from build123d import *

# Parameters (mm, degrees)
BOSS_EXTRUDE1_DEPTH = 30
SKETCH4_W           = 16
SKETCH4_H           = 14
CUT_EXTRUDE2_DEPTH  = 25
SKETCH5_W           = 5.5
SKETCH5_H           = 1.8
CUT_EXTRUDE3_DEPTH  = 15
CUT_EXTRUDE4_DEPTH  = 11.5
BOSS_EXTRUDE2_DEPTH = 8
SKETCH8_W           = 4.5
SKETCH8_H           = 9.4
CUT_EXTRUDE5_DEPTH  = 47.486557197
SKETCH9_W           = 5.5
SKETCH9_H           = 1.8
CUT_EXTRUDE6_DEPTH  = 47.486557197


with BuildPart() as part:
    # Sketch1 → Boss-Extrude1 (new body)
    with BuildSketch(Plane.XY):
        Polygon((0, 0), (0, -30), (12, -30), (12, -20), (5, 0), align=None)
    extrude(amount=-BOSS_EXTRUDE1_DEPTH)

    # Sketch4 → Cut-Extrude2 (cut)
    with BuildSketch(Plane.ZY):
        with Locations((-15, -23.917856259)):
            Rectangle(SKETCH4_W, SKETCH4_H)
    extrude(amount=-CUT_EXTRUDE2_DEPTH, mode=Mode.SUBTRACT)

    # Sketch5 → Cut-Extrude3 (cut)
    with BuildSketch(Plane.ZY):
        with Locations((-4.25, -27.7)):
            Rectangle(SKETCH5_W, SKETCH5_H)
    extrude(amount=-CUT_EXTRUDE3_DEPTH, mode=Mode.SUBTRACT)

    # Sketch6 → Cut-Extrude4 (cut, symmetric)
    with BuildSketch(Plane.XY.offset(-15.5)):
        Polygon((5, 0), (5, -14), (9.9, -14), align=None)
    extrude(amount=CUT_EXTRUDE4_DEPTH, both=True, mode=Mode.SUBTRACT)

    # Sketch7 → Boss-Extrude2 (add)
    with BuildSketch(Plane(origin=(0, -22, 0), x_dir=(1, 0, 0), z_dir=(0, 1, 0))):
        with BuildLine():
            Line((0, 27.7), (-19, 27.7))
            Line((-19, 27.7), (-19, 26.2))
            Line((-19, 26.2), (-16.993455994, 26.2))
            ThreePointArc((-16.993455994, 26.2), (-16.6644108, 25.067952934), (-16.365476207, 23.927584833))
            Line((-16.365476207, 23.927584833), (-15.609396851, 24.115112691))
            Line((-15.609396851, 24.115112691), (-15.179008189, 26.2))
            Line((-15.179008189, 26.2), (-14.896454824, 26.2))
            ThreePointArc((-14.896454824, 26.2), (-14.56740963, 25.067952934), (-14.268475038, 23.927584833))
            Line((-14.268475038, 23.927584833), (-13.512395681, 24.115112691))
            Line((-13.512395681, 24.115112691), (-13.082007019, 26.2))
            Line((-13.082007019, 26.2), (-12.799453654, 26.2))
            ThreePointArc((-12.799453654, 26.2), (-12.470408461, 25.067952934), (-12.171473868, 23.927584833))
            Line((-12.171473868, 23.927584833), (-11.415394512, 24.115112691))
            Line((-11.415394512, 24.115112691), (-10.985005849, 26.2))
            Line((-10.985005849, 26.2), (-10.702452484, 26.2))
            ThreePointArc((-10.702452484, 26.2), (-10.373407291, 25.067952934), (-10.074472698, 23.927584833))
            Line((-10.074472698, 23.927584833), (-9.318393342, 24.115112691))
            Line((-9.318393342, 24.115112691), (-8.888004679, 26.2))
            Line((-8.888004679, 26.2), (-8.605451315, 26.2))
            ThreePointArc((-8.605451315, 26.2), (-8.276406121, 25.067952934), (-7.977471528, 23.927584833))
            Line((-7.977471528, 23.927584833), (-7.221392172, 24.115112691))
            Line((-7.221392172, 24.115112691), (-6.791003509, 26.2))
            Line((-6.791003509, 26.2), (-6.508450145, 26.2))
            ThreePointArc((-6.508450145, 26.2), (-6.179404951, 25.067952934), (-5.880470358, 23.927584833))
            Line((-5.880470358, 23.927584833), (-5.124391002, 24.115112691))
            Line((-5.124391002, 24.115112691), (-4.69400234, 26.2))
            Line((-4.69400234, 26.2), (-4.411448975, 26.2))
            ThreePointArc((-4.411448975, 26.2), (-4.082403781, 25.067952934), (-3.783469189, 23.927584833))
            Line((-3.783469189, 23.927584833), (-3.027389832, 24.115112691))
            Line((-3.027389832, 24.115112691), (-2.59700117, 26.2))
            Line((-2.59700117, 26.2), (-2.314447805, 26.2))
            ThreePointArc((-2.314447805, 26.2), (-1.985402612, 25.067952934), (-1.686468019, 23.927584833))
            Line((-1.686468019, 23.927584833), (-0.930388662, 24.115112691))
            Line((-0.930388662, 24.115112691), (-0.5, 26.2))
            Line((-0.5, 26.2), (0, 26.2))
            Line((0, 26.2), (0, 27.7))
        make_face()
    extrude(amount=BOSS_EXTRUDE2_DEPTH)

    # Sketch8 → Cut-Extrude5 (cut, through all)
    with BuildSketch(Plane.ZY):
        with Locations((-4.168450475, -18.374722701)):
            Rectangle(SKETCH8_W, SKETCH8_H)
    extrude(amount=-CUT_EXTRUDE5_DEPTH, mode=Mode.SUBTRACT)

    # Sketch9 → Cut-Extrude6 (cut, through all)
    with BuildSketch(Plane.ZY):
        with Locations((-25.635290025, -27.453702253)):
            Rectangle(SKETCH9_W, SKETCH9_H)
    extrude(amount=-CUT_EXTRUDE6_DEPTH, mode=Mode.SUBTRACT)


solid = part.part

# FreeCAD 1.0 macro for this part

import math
import FreeCAD as App
import Part
import Sketcher

V = App.Vector
Q = App.Units.Quantity

doc = App.newDocument("Part")
body = doc.addObject("PartDesign::Body", "Body")

# Sketch on XY plane
sketch1 = body.newObject("Sketcher::SketchObject", "Sketch")
sketch1.AttachmentSupport = (doc.getObject("XY_Plane"), [""])
sketch1.MapMode = "FlatFace"
sketch1.addGeometry([
    Part.LineSegment(V(0, 0, 0), V(0, -30, 0)),  # 0
    Part.LineSegment(V(0, -30, 0), V(12, -30, 0)),  # 1
    Part.LineSegment(V(12, -30, 0), V(12, -20, 0)),  # 2
    Part.LineSegment(V(12, -20, 0), V(5, 0, 0)),  # 3
    Part.LineSegment(V(5, 0, 0), V(0, 0, 0)),  # 4
], False)
sketch1.addConstraint([
    Sketcher.Constraint("Coincident", 0, 2, 1, 1),
    Sketcher.Constraint("Coincident", 1, 2, 2, 1),
    Sketcher.Constraint("Coincident", 2, 2, 3, 1),
    Sketcher.Constraint("Coincident", 3, 2, 4, 1),
    Sketcher.Constraint("Coincident", 4, 2, 0, 1),
    Sketcher.Constraint("Vertical", 0),
    Sketcher.Constraint("Horizontal", 1),
    Sketcher.Constraint("Vertical", 2),
    Sketcher.Constraint("Horizontal", 4),
    Sketcher.Constraint("Coincident", 4, 2, -1, 1),
    Sketcher.Constraint("DistanceX", 1, 1, 1, 2, Q("12 mm")),
    Sketcher.Constraint("DistanceX", 4, 2, 4, 1, Q("5 mm")),
    Sketcher.Constraint("DistanceY", 0, 2, 0, 1, Q("30 mm")),
    Sketcher.Constraint("DistanceY", 2, 1, 2, 2, Q("10 mm")),
])
pad1 = body.newObject("PartDesign::Pad", "Pad")
pad1.Profile = sketch1
pad1.Length = 30
pad1.Reversed = True

# Sketch on YZ plane
sketch2 = body.newObject("Sketcher::SketchObject", "Sketch001")
sketch2.AttachmentSupport = (doc.getObject("YZ_Plane"), [""])
sketch2.MapMode = "FlatFace"
sketch2.addGeometry([
    Part.LineSegment(V(-16.917856, -23, 0), V(-30.917856, -23, 0)),
    Part.LineSegment(V(-30.917856, -23, 0), V(-30.917856, -7, 0)),
    Part.LineSegment(V(-30.917856, -7, 0), V(-16.917856, -7, 0)),
    Part.LineSegment(V(-16.917856, -7, 0), V(-16.917856, -23, 0)),
], False)
sketch2.addConstraint([
    Sketcher.Constraint("Coincident", 0, 2, 1, 1),
    Sketcher.Constraint("Coincident", 1, 2, 2, 1),
    Sketcher.Constraint("Coincident", 2, 2, 3, 1),
    Sketcher.Constraint("Coincident", 3, 2, 0, 1),
    Sketcher.Constraint("Horizontal", 0),
    Sketcher.Constraint("Vertical", 1),
    Sketcher.Constraint("Horizontal", 2),
    Sketcher.Constraint("Vertical", 3),
    Sketcher.Constraint("DistanceX", 0, 2, 0, 1, Q("14 mm")),
    Sketcher.Constraint("DistanceY", 1, 1, 1, 2, Q("16 mm")),
    Sketcher.Constraint("DistanceY", 0, 2, -1, 1, Q("23 mm")),
    Sketcher.Constraint("DistanceX", 0, 2, -1, 1, Q("30.917856 mm")),
])
pocket1 = body.newObject("PartDesign::Pocket", "Pocket")
pocket1.Profile = sketch2
pocket1.Length = 25
pocket1.Reversed = True

# Sketch on YZ plane
sketch3 = body.newObject("Sketcher::SketchObject", "Sketch002")
sketch3.AttachmentSupport = (doc.getObject("YZ_Plane"), [""])
sketch3.MapMode = "FlatFace"
sketch3.addGeometry([
    Part.LineSegment(V(-26.8, -7, 0), V(-28.6, -7, 0)),
    Part.LineSegment(V(-28.6, -7, 0), V(-28.6, -1.5, 0)),
    Part.LineSegment(V(-28.6, -1.5, 0), V(-26.8, -1.5, 0)),
    Part.LineSegment(V(-26.8, -1.5, 0), V(-26.8, -7, 0)),
], False)
sketch3.addConstraint([
    Sketcher.Constraint("Coincident", 0, 2, 1, 1),
    Sketcher.Constraint("Coincident", 1, 2, 2, 1),
    Sketcher.Constraint("Coincident", 2, 2, 3, 1),
    Sketcher.Constraint("Coincident", 3, 2, 0, 1),
    Sketcher.Constraint("Horizontal", 0),
    Sketcher.Constraint("Vertical", 1),
    Sketcher.Constraint("Horizontal", 2),
    Sketcher.Constraint("Vertical", 3),
    Sketcher.Constraint("DistanceX", 0, 2, 0, 1, Q("1.8 mm")),
    Sketcher.Constraint("DistanceY", 1, 1, 1, 2, Q("5.5 mm")),
    Sketcher.Constraint("DistanceY", 0, 2, -1, 1, Q("7 mm")),
    Sketcher.Constraint("DistanceX", 0, 2, -1, 1, Q("28.6 mm")),
])
pocket2 = body.newObject("PartDesign::Pocket", "Pocket001")
pocket2.Profile = sketch3
pocket2.Length = 15
pocket2.Reversed = True

# Sketch on XY plane
sketch4 = body.newObject("Sketcher::SketchObject", "Sketch003")
sketch4.AttachmentSupport = (doc.getObject("XY_Plane"), [""])
sketch4.MapMode = "FlatFace"
sketch4.AttachmentOffset = App.Placement(V(0, 0, -15.5), App.Rotation())
sketch4.addGeometry([
    Part.LineSegment(V(5, 0, 0), V(5, -14, 0)),
    Part.LineSegment(V(5, -14, 0), V(9.9, -14, 0)),
    Part.LineSegment(V(9.9, -14, 0), V(5, 0, 0)),
], False)
sketch4.addConstraint([
    Sketcher.Constraint("Coincident", 0, 2, 1, 1),
    Sketcher.Constraint("Coincident", 1, 2, 2, 1),
    Sketcher.Constraint("Coincident", 2, 2, 0, 1),
    Sketcher.Constraint("Vertical", 0),
    Sketcher.Constraint("Horizontal", 1),
    Sketcher.Constraint("PointOnObject", 2, 2, -1),
    Sketcher.Constraint("DistanceY", 0, 2, 0, 1, Q("14 mm")),
    Sketcher.Constraint("DistanceX", 1, 1, 1, 2, Q("4.9 mm")),
    Sketcher.Constraint("DistanceX", -1, 1, 0, 2, Q("5 mm")),
])
pocket3 = body.newObject("PartDesign::Pocket", "Pocket002")
pocket3.Profile = sketch4
pocket3.Length = 23
pocket3.Midplane = True

# Sketch on XZ plane
sketch5 = body.newObject("Sketcher::SketchObject", "Sketch004")
sketch5.AttachmentSupport = (doc.getObject("XZ_Plane"), [""])
sketch5.MapMode = "FlatFace"
sketch5.AttachmentOffset = App.Placement(V(0, 0, 22), App.Rotation())
sketch5.addGeometry([
    Part.LineSegment(V(0, -27.7, 0), V(-19, -27.7, 0)),  # 0
    Part.LineSegment(V(-19, -27.7, 0), V(-19, -26.2, 0)),  # 1
    Part.LineSegment(V(-19, -26.2, 0), V(-16.993456, -26.2, 0)),  # 2
    Part.ArcOfCircle(Part.Circle(V(-59.54613, -13.21763, 0), V(0, 0, 1), 44.48901), math.radians(-16.966392), math.radians(-13.929782)),  # 3
    Part.LineSegment(V(-16.365476, -23.927585, 0), V(-15.609397, -24.115113, 0)),  # 4
    Part.LineSegment(V(-15.609397, -24.115113, 0), V(-15.179008, -26.2, 0)),  # 5
    Part.LineSegment(V(-15.179008, -26.2, 0), V(-14.896455, -26.2, 0)),  # 6
    Part.ArcOfCircle(Part.Circle(V(-57.449128, -13.217631, 0), V(0, 0, 1), 44.489009), math.radians(-16.966392), math.radians(-13.929782)),  # 7
    Part.LineSegment(V(-14.268475, -23.927585, 0), V(-13.512396, -24.115113, 0)),  # 8
    Part.LineSegment(V(-13.512396, -24.115113, 0), V(-13.082007, -26.2, 0)),  # 9
    Part.LineSegment(V(-13.082007, -26.2, 0), V(-12.799454, -26.2, 0)),  # 10
    Part.ArcOfCircle(Part.Circle(V(-55.352129, -13.21763, 0), V(0, 0, 1), 44.489011), math.radians(-16.966392), math.radians(-13.929782)),  # 11
    Part.LineSegment(V(-12.171474, -23.927585, 0), V(-11.415395, -24.115113, 0)),  # 12
    Part.LineSegment(V(-11.415395, -24.115113, 0), V(-10.985006, -26.2, 0)),  # 13
    Part.LineSegment(V(-10.985006, -26.2, 0), V(-10.702452, -26.2, 0)),  # 14
    Part.ArcOfCircle(Part.Circle(V(-53.255128, -13.21763, 0), V(0, 0, 1), 44.489011), math.radians(-16.966392), math.radians(-13.929782)),  # 15
    Part.LineSegment(V(-10.074473, -23.927585, 0), V(-9.318393, -24.115113, 0)),  # 16
    Part.LineSegment(V(-9.318393, -24.115113, 0), V(-8.888005, -26.2, 0)),  # 17
    Part.LineSegment(V(-8.888005, -26.2, 0), V(-8.605451, -26.2, 0)),  # 18
    Part.ArcOfCircle(Part.Circle(V(-51.158126, -13.21763, 0), V(0, 0, 1), 44.48901), math.radians(-16.966392), math.radians(-13.929782)),  # 19
    Part.LineSegment(V(-7.977472, -23.927585, 0), V(-7.221392, -24.115113, 0)),  # 20
    Part.LineSegment(V(-7.221392, -24.115113, 0), V(-6.791004, -26.2, 0)),  # 21
    Part.LineSegment(V(-6.791004, -26.2, 0), V(-6.50845, -26.2, 0)),  # 22
    Part.ArcOfCircle(Part.Circle(V(-49.061125, -13.21763, 0), V(0, 0, 1), 44.48901), math.radians(-16.966392), math.radians(-13.929782)),  # 23
    Part.LineSegment(V(-5.88047, -23.927585, 0), V(-5.124391, -24.115113, 0)),  # 24
    Part.LineSegment(V(-5.124391, -24.115113, 0), V(-4.694002, -26.2, 0)),  # 25
    Part.LineSegment(V(-4.694002, -26.2, 0), V(-4.411449, -26.2, 0)),  # 26
    Part.ArcOfCircle(Part.Circle(V(-46.964122, -13.217631, 0), V(0, 0, 1), 44.489009), math.radians(-16.966392), math.radians(-13.929782)),  # 27
    Part.LineSegment(V(-3.783469, -23.927585, 0), V(-3.02739, -24.115113, 0)),  # 28
    Part.LineSegment(V(-3.02739, -24.115113, 0), V(-2.597001, -26.2, 0)),  # 29
    Part.LineSegment(V(-2.597001, -26.2, 0), V(-2.314448, -26.2, 0)),  # 30
    Part.ArcOfCircle(Part.Circle(V(-44.867123, -13.21763, 0), V(0, 0, 1), 44.489011), math.radians(-16.966392), math.radians(-13.929782)),  # 31
    Part.LineSegment(V(-1.686468, -23.927585, 0), V(-0.930389, -24.115113, 0)),  # 32
    Part.LineSegment(V(-0.930389, -24.115113, 0), V(-0.5, -26.2, 0)),  # 33
    Part.LineSegment(V(-0.5, -26.2, 0), V(0, -26.2, 0)),  # 34
    Part.LineSegment(V(0, -26.2, 0), V(0, -27.7, 0)),  # 35
], False)
sketch5.addConstraint([
    Sketcher.Constraint("Coincident", 0, 2, 1, 1),
    Sketcher.Constraint("Coincident", 1, 2, 2, 1),
    Sketcher.Constraint("Coincident", 2, 2, 3, 1),
    Sketcher.Constraint("Coincident", 3, 2, 4, 1),
    Sketcher.Constraint("Coincident", 4, 2, 5, 1),
    Sketcher.Constraint("Coincident", 5, 2, 6, 1),
    Sketcher.Constraint("Coincident", 6, 2, 7, 1),
    Sketcher.Constraint("Coincident", 7, 2, 8, 1),
    Sketcher.Constraint("Coincident", 8, 2, 9, 1),
    Sketcher.Constraint("Coincident", 9, 2, 10, 1),
    Sketcher.Constraint("Coincident", 10, 2, 11, 1),
    Sketcher.Constraint("Coincident", 11, 2, 12, 1),
    Sketcher.Constraint("Coincident", 12, 2, 13, 1),
    Sketcher.Constraint("Coincident", 13, 2, 14, 1),
    Sketcher.Constraint("Coincident", 14, 2, 15, 1),
    Sketcher.Constraint("Coincident", 15, 2, 16, 1),
    Sketcher.Constraint("Coincident", 16, 2, 17, 1),
    Sketcher.Constraint("Coincident", 17, 2, 18, 1),
    Sketcher.Constraint("Coincident", 18, 2, 19, 1),
    Sketcher.Constraint("Coincident", 19, 2, 20, 1),
    Sketcher.Constraint("Coincident", 20, 2, 21, 1),
    Sketcher.Constraint("Coincident", 21, 2, 22, 1),
    Sketcher.Constraint("Coincident", 22, 2, 23, 1),
    Sketcher.Constraint("Coincident", 23, 2, 24, 1),
    Sketcher.Constraint("Coincident", 24, 2, 25, 1),
    Sketcher.Constraint("Coincident", 25, 2, 26, 1),
    Sketcher.Constraint("Coincident", 26, 2, 27, 1),
    Sketcher.Constraint("Coincident", 27, 2, 28, 1),
    Sketcher.Constraint("Coincident", 28, 2, 29, 1),
    Sketcher.Constraint("Coincident", 29, 2, 30, 1),
    Sketcher.Constraint("Coincident", 30, 2, 31, 1),
    Sketcher.Constraint("Coincident", 31, 2, 32, 1),
    Sketcher.Constraint("Coincident", 32, 2, 33, 1),
    Sketcher.Constraint("Coincident", 33, 2, 34, 1),
    Sketcher.Constraint("Coincident", 34, 2, 35, 1),
    Sketcher.Constraint("Coincident", 35, 2, 0, 1),
    Sketcher.Constraint("Horizontal", 0),
    Sketcher.Constraint("Vertical", 1),
    Sketcher.Constraint("Horizontal", 2),
    Sketcher.Constraint("Horizontal", 6),
    Sketcher.Constraint("Horizontal", 10),
    Sketcher.Constraint("Horizontal", 14),
    Sketcher.Constraint("Horizontal", 18),
    Sketcher.Constraint("Horizontal", 22),
    Sketcher.Constraint("Horizontal", 26),
    Sketcher.Constraint("Horizontal", 30),
    Sketcher.Constraint("Horizontal", 34),
    Sketcher.Constraint("Vertical", 35),
    Sketcher.Constraint("Equal", 3, 7),
    Sketcher.Constraint("Equal", 3, 11),
    Sketcher.Constraint("Equal", 11, 15),
    Sketcher.Constraint("Equal", 15, 19),
    Sketcher.Constraint("Equal", 19, 23),
    Sketcher.Constraint("Equal", 23, 27),
    Sketcher.Constraint("Equal", 23, 31),
    Sketcher.Constraint("PointOnObject", 34, 2, -2),
    Sketcher.Constraint("Parallel", 4, 8),
    Sketcher.Constraint("Parallel", 5, 9),
    Sketcher.Constraint("Parallel", 8, 12),
    Sketcher.Constraint("Parallel", 9, 13),
    Sketcher.Constraint("Parallel", 12, 16),
    Sketcher.Constraint("Parallel", 13, 17),
    Sketcher.Constraint("Parallel", 16, 20),
    Sketcher.Constraint("Parallel", 17, 21),
    Sketcher.Constraint("Parallel", 20, 24),
    Sketcher.Constraint("Parallel", 21, 25),
    Sketcher.Constraint("Parallel", 24, 28),
    Sketcher.Constraint("Parallel", 25, 29),
    Sketcher.Constraint("Parallel", 28, 32),
    Sketcher.Constraint("Parallel", 29, 33),
    Sketcher.Constraint("Horizontal", 3, 3, 7, 3),
    Sketcher.Constraint("Horizontal", 7, 3, 11, 3),
    Sketcher.Constraint("Horizontal", 11, 3, 15, 3),
    Sketcher.Constraint("Horizontal", 15, 3, 19, 3),
    Sketcher.Constraint("Horizontal", 19, 3, 23, 3),
    Sketcher.Constraint("Horizontal", 23, 3, 27, 3),
    Sketcher.Constraint("Horizontal", 27, 3, 31, 3),
    Sketcher.Constraint("Horizontal", 2, 2, 5, 2),
    Sketcher.Constraint("Horizontal", 3, 2, 7, 2),
    Sketcher.Constraint("Horizontal", 4, 2, 8, 2),
    Sketcher.Constraint("Horizontal", 6, 2, 9, 2),
    Sketcher.Constraint("Horizontal", 7, 2, 11, 2),
    Sketcher.Constraint("Horizontal", 8, 2, 12, 2),
    Sketcher.Constraint("Horizontal", 10, 2, 13, 2),
    Sketcher.Constraint("Horizontal", 11, 2, 15, 2),
    Sketcher.Constraint("Horizontal", 12, 2, 16, 2),
    Sketcher.Constraint("Horizontal", 14, 2, 17, 2),
    Sketcher.Constraint("Horizontal", 15, 2, 19, 2),
    Sketcher.Constraint("Horizontal", 16, 2, 20, 2),
    Sketcher.Constraint("Horizontal", 18, 2, 21, 2),
    Sketcher.Constraint("Horizontal", 19, 2, 23, 2),
    Sketcher.Constraint("Horizontal", 20, 2, 24, 2),
    Sketcher.Constraint("Horizontal", 22, 2, 25, 2),
    Sketcher.Constraint("Horizontal", 23, 2, 27, 2),
    Sketcher.Constraint("Horizontal", 24, 2, 28, 2),
    Sketcher.Constraint("Horizontal", 26, 2, 29, 2),
    Sketcher.Constraint("Horizontal", 27, 2, 31, 2),
    Sketcher.Constraint("Horizontal", 28, 2, 32, 2),
    Sketcher.Constraint("Horizontal", 30, 2, 33, 2),
    Sketcher.Constraint("Equal", 6, 10),
    Sketcher.Constraint("Equal", 10, 14),
    Sketcher.Constraint("Equal", 14, 18),
    Sketcher.Constraint("Equal", 18, 22),
    Sketcher.Constraint("Equal", 22, 26),
    Sketcher.Constraint("Equal", 26, 30),
    Sketcher.Constraint("DistanceX", 0, 2, 0, 1, Q("19 mm")),
    Sketcher.Constraint("DistanceX", 34, 1, 34, 2, Q("0.5 mm")),
    Sketcher.Constraint("DistanceY", 1, 1, 1, 2, Q("1.5 mm")),
    Sketcher.Constraint("DistanceY", 0, 2, -1, 1, Q("27.7 mm")),
    Sketcher.Constraint("Radius", 3, Q("44.48901 mm")),
    Sketcher.Constraint("DistanceX", 29, 2, -1, 1, Q("2.597001 mm")),
    Sketcher.Constraint("Distance", 4, Q("0.778988 mm")),
    Sketcher.Constraint("DistanceX", 2, 1, 2, 2, Q("2.006544 mm")),
    Sketcher.Constraint("DistanceX", 3, 3, -1, 1, Q("59.54613 mm")),
    Sketcher.Constraint("DistanceX", 19, 2, -1, 1, Q("7.977472 mm")),
    Sketcher.Constraint("DistanceX", 24, 2, -1, 1, Q("5.124391 mm")),
])
pad2 = body.newObject("PartDesign::Pad", "Pad001")
pad2.Profile = sketch5
pad2.Length = 8
pad2.Reversed = True

# Sketch on YZ plane
sketch6 = body.newObject("Sketcher::SketchObject", "Sketch005")
sketch6.AttachmentSupport = (doc.getObject("YZ_Plane"), [""])
sketch6.MapMode = "FlatFace"
sketch6.addGeometry([
    Part.LineSegment(V(-13.674723, -6.41845, 0), V(-23.074723, -6.41845, 0)),
    Part.LineSegment(V(-23.074723, -6.41845, 0), V(-23.074723, -1.91845, 0)),
    Part.LineSegment(V(-23.074723, -1.91845, 0), V(-13.674723, -1.91845, 0)),
    Part.LineSegment(V(-13.674723, -1.91845, 0), V(-13.674723, -6.41845, 0)),
], False)
sketch6.addConstraint([
    Sketcher.Constraint("Coincident", 0, 2, 1, 1),
    Sketcher.Constraint("Coincident", 1, 2, 2, 1),
    Sketcher.Constraint("Coincident", 2, 2, 3, 1),
    Sketcher.Constraint("Coincident", 3, 2, 0, 1),
    Sketcher.Constraint("Horizontal", 0),
    Sketcher.Constraint("Vertical", 1),
    Sketcher.Constraint("Horizontal", 2),
    Sketcher.Constraint("Vertical", 3),
    Sketcher.Constraint("DistanceX", 0, 2, 0, 1, Q("9.4 mm")),
    Sketcher.Constraint("DistanceY", 1, 1, 1, 2, Q("4.5 mm")),
    Sketcher.Constraint("DistanceY", 0, 2, -1, 1, Q("6.41845 mm")),
    Sketcher.Constraint("DistanceX", 0, 2, -1, 1, Q("23.074723 mm")),
])
pocket4 = body.newObject("PartDesign::Pocket", "Pocket003")
pocket4.Profile = sketch6
pocket4.Type = "ThroughAll"
pocket4.Reversed = True

# Sketch on YZ plane
sketch7 = body.newObject("Sketcher::SketchObject", "Sketch006")
sketch7.AttachmentSupport = (doc.getObject("YZ_Plane"), [""])
sketch7.MapMode = "FlatFace"
sketch7.addGeometry([
    Part.LineSegment(V(-26.553702, -28.38529, 0), V(-28.353702, -28.38529, 0)),
    Part.LineSegment(V(-28.353702, -28.38529, 0), V(-28.353702, -22.88529, 0)),
    Part.LineSegment(V(-28.353702, -22.88529, 0), V(-26.553702, -22.88529, 0)),
    Part.LineSegment(V(-26.553702, -22.88529, 0), V(-26.553702, -28.38529, 0)),
], False)
sketch7.addConstraint([
    Sketcher.Constraint("Coincident", 0, 2, 1, 1),
    Sketcher.Constraint("Coincident", 1, 2, 2, 1),
    Sketcher.Constraint("Coincident", 2, 2, 3, 1),
    Sketcher.Constraint("Coincident", 3, 2, 0, 1),
    Sketcher.Constraint("Horizontal", 0),
    Sketcher.Constraint("Vertical", 1),
    Sketcher.Constraint("Horizontal", 2),
    Sketcher.Constraint("Vertical", 3),
    Sketcher.Constraint("DistanceX", 0, 2, 0, 1, Q("1.8 mm")),
    Sketcher.Constraint("DistanceY", 1, 1, 1, 2, Q("5.5 mm")),
    Sketcher.Constraint("DistanceY", 0, 2, -1, 1, Q("28.38529 mm")),
    Sketcher.Constraint("DistanceX", 0, 2, -1, 1, Q("28.353702 mm")),
])
pocket5 = body.newObject("PartDesign::Pocket", "Pocket004")
pocket5.Profile = sketch7
pocket5.Type = "ThroughAll"
pocket5.Reversed = True

doc.recompute()
